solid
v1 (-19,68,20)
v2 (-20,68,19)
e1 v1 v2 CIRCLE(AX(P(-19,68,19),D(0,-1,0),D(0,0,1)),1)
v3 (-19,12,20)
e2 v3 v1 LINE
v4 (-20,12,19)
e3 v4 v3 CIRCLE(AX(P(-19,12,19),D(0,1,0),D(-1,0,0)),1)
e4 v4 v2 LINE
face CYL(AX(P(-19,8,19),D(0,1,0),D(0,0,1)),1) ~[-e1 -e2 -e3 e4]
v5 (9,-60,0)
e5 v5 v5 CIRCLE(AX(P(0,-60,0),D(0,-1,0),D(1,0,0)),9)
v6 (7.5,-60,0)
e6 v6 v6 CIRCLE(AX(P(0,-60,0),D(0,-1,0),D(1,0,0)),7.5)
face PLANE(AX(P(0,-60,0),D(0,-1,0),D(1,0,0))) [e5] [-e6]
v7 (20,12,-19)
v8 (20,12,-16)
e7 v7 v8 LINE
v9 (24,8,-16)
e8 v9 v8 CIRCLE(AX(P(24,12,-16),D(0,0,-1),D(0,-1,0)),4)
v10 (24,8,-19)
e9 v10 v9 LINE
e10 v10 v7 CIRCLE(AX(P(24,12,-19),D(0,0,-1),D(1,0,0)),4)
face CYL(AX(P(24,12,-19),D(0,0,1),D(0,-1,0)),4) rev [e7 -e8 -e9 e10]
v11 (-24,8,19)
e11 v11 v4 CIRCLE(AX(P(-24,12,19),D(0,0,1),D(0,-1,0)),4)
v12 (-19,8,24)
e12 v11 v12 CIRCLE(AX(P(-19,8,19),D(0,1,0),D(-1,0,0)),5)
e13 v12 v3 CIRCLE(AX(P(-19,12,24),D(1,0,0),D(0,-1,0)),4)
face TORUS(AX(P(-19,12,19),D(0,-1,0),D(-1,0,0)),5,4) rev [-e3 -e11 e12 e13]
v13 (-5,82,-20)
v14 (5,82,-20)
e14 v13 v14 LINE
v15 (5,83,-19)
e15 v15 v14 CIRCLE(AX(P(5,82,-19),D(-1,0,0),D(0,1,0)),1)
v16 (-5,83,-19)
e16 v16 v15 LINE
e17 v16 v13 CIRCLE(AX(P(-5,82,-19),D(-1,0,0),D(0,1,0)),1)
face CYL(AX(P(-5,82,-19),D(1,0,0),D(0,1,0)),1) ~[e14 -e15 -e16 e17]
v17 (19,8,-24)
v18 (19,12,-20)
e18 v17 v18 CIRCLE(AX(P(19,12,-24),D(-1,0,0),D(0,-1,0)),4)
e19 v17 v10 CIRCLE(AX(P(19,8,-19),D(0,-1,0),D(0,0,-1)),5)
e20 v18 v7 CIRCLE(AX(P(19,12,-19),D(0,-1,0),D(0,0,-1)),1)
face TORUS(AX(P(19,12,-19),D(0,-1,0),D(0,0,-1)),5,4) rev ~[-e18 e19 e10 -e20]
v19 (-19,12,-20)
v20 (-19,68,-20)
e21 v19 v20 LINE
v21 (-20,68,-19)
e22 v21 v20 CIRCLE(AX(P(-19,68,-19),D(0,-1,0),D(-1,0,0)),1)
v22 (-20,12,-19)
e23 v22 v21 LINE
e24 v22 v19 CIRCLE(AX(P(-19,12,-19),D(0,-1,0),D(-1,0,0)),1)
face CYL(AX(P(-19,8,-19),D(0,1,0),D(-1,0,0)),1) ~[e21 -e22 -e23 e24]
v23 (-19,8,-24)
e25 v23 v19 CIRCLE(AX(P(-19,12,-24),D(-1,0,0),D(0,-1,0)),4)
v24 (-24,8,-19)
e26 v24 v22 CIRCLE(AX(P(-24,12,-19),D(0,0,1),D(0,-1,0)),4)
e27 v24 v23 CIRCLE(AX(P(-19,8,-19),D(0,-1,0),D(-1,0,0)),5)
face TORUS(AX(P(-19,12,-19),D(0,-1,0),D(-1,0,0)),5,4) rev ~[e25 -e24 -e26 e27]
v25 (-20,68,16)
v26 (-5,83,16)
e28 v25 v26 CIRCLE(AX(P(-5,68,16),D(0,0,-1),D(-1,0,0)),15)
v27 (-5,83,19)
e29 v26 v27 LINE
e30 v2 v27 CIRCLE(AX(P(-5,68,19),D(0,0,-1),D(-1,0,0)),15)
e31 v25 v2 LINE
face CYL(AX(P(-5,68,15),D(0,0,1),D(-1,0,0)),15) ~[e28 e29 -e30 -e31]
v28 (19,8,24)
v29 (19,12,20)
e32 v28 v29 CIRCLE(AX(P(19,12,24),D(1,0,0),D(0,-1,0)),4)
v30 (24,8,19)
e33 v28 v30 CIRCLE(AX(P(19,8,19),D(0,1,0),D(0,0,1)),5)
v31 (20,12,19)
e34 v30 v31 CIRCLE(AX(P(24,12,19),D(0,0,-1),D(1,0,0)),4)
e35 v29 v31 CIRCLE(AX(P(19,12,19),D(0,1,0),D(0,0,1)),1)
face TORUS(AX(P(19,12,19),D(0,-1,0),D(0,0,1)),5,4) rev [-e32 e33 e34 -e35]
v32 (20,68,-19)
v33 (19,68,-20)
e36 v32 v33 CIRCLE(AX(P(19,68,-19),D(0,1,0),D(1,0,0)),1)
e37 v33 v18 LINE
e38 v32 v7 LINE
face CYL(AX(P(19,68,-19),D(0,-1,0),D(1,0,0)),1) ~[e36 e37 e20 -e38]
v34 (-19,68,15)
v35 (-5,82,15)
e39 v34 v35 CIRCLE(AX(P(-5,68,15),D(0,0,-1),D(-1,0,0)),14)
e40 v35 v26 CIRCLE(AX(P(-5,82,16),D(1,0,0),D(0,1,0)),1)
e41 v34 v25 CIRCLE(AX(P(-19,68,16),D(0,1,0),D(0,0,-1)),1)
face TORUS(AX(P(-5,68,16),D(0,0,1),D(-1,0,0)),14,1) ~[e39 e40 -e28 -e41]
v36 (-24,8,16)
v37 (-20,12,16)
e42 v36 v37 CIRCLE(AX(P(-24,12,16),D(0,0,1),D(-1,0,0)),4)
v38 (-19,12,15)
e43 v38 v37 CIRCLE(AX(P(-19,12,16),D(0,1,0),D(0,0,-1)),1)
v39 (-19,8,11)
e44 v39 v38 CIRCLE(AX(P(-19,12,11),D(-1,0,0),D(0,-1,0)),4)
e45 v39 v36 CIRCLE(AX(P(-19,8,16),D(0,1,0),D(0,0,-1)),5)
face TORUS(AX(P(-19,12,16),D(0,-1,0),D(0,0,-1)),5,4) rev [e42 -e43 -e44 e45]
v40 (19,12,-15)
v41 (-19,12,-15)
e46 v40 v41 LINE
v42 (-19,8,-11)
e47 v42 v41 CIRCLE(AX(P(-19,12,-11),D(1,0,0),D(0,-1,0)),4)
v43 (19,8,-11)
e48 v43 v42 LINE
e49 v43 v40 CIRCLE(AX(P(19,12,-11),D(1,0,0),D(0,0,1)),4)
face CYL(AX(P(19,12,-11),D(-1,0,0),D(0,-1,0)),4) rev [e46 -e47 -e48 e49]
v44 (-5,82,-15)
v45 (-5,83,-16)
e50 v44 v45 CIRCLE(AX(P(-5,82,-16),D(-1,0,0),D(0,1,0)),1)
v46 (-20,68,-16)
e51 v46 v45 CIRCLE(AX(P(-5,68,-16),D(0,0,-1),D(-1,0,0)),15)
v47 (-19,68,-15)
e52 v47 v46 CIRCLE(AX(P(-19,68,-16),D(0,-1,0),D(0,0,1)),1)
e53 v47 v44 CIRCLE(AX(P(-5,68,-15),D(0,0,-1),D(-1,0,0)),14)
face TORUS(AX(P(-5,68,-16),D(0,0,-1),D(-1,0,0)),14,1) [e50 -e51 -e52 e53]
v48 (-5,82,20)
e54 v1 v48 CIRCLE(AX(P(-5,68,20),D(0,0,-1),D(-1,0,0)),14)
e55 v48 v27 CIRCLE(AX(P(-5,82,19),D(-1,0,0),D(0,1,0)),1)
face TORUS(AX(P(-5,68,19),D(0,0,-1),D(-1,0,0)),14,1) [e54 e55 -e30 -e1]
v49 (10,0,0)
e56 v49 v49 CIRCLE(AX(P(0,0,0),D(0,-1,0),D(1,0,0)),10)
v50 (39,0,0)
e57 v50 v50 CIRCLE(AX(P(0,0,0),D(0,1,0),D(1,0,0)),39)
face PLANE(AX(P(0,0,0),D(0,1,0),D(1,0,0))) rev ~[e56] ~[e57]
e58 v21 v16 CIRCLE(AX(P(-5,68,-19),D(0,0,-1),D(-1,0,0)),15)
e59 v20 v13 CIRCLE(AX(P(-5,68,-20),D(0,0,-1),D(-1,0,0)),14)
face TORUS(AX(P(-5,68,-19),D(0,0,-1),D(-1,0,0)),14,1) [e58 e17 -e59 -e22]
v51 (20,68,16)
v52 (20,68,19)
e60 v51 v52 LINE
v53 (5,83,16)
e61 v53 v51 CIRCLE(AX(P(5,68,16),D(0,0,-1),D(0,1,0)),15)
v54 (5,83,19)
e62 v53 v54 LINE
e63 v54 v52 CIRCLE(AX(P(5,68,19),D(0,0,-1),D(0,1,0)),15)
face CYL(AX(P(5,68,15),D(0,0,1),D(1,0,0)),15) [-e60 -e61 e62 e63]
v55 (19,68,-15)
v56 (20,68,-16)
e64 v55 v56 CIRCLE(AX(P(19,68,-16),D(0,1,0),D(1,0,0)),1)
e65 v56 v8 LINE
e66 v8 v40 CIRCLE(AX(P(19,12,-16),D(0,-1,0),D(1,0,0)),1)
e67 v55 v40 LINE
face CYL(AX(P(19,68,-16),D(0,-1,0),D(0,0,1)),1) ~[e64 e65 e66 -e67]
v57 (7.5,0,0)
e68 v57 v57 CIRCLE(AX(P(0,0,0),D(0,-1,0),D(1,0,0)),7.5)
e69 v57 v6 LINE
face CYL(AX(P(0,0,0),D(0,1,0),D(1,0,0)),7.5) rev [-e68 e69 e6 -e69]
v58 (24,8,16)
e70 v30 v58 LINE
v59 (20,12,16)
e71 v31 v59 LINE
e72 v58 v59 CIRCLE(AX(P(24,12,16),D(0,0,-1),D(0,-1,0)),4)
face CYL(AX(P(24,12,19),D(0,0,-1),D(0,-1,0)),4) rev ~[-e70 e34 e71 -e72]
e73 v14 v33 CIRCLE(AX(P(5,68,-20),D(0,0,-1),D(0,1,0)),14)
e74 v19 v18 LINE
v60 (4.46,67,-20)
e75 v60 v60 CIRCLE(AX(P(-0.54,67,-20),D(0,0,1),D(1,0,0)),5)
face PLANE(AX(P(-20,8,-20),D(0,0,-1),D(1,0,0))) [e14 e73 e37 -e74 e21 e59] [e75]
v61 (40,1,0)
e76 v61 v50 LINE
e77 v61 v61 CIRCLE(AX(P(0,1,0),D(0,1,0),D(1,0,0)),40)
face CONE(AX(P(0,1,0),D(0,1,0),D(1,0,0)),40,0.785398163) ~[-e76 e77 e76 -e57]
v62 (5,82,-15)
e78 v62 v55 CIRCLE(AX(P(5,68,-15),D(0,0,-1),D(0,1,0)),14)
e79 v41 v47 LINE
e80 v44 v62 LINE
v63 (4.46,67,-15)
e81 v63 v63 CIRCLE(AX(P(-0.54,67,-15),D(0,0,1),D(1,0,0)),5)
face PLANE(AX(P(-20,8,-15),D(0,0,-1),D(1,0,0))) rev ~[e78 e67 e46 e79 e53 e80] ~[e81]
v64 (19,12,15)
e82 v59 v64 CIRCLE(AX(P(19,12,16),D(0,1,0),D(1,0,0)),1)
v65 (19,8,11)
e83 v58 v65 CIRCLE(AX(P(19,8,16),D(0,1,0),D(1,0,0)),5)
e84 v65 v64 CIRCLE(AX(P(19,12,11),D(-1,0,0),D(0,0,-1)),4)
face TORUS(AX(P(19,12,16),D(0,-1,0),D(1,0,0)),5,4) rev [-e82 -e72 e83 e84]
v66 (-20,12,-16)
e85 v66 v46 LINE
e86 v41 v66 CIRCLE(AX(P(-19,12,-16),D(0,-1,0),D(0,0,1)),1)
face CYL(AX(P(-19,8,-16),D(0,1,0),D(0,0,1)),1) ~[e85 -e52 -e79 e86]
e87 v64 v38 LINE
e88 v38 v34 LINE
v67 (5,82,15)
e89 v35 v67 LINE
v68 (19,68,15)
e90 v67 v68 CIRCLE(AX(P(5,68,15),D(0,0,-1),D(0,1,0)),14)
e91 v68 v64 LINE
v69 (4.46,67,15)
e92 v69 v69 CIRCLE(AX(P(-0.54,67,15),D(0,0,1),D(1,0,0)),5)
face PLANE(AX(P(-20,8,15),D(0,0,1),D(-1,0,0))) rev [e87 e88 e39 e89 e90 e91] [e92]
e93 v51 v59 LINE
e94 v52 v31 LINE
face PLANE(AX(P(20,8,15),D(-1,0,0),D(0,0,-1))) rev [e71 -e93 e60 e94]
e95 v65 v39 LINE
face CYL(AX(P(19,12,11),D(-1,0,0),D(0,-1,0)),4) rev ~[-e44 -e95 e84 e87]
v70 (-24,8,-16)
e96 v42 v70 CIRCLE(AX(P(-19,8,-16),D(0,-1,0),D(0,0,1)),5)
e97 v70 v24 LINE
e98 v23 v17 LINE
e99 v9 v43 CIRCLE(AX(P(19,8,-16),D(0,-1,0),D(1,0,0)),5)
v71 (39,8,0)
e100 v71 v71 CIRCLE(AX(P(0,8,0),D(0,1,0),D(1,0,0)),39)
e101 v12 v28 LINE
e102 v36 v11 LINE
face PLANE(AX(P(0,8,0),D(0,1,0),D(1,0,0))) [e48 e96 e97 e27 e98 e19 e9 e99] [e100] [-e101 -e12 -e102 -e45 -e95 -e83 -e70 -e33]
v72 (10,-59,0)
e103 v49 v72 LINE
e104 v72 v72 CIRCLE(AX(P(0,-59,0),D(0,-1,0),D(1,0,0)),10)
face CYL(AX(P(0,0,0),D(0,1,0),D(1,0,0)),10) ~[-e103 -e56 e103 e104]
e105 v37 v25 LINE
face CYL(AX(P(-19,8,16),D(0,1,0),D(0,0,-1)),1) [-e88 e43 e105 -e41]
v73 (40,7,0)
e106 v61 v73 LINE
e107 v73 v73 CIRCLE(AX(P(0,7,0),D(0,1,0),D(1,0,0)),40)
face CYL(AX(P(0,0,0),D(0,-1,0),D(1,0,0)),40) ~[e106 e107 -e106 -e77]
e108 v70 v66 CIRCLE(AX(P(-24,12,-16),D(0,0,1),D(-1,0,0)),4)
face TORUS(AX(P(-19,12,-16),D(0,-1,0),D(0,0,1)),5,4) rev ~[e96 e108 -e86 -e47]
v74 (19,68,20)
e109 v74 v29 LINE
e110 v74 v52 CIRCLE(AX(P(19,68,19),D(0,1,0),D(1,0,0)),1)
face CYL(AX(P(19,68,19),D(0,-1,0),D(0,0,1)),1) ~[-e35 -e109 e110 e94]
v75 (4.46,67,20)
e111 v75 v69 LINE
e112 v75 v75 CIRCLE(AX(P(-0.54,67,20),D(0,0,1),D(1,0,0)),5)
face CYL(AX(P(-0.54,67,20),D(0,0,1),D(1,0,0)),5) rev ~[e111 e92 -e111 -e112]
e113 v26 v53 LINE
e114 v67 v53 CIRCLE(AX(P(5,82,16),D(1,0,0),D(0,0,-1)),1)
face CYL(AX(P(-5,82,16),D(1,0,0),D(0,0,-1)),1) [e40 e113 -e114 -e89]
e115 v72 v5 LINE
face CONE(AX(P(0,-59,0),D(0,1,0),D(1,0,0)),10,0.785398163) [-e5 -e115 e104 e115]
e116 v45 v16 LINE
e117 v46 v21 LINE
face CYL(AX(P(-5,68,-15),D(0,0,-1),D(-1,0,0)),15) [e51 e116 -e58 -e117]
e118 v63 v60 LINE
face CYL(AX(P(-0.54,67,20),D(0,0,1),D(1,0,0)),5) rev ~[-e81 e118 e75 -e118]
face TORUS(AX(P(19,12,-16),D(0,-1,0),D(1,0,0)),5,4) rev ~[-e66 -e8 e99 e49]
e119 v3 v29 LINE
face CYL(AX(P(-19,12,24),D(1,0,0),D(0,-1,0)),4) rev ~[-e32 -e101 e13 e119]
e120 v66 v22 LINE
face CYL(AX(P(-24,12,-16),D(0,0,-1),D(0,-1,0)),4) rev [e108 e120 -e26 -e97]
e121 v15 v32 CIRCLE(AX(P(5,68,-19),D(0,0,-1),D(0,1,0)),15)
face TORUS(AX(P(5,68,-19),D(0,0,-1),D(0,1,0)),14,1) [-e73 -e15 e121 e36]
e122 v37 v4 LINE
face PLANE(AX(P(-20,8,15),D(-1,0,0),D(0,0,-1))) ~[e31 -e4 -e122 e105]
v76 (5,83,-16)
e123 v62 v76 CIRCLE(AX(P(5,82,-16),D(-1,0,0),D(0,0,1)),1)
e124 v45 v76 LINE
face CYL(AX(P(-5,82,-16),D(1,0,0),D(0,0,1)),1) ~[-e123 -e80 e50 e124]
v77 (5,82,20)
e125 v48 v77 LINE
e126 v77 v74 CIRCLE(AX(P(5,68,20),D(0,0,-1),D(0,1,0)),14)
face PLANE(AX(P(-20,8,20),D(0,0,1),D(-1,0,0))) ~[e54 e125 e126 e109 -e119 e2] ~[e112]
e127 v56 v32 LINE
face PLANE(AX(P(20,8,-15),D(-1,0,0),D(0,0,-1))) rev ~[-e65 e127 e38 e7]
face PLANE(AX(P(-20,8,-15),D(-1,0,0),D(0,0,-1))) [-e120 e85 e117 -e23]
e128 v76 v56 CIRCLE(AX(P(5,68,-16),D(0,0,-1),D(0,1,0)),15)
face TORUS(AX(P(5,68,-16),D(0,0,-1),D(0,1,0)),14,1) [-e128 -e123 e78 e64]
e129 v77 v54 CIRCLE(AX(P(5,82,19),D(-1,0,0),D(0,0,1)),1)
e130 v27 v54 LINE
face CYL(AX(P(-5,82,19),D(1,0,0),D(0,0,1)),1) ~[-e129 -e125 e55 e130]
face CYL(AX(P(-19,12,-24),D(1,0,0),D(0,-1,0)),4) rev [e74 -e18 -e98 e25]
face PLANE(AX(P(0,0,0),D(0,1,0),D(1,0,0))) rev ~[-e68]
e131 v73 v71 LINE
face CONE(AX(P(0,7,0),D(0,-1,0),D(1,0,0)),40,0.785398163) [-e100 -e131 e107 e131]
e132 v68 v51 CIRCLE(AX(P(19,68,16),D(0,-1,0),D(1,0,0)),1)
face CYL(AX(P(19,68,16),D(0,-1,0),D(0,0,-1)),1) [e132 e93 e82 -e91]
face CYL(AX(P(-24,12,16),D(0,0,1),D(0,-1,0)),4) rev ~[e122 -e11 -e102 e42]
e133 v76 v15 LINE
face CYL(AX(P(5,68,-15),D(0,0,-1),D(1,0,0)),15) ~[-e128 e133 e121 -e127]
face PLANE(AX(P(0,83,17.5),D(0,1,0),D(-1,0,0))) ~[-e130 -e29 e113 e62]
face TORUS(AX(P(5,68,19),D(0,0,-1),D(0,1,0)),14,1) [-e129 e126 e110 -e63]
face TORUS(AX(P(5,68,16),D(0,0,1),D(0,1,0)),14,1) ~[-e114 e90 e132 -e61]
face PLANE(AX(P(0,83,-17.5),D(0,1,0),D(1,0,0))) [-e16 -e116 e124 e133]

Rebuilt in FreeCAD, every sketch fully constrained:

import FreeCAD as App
import Part
import Sketcher

V = App.Vector


def edges_at(feature, points):
    """Names of the edges that pass closest to the given points."""
    edges = feature.Shape.Edges
    near = lambda p: min(range(len(edges)), key=lambda i: edges[i].distToShape(Part.Vertex(*p))[0])
    return sorted({f"Edge{near(p) + 1}" for p in points})


def add_polygon(sketch, points):
    """Adds a closed chain of lines whose ends are joined by coincident constraints."""
    first, n = sketch.GeometryCount, len(points)
    for a, b in zip(points, points[1:] + points[:1]):
        sketch.addGeometry(Part.LineSegment(App.Vector(*a, 0), App.Vector(*b, 0)), False)
    for i in range(n):
        sketch.addConstraint(Sketcher.Constraint("Coincident", first + i, 2, first + (i + 1) % n, 1))

doc = App.newDocument("Part")
params = doc.addObject("Spreadsheet::Sheet", "Params")
for row, (alias, value) in enumerate([
    ("sketch1_diameter", "80 mm"),
    ("pad1_length", "8 mm"),
    ("sketch2_diameter", "20 mm"),
    ("sketch2_diameter2", "15 mm"),
    ("pad2_length", "60 mm"),
    ("chamfer_size", "1 mm"),
    ("sketch3_width", "40 mm"),
    ("sketch3_height", "5 mm"),
    ("pad3_length", "75 mm"),
    ("fillet_radius", "15 mm"),
    ("fillet2_radius", "1 mm"),
    ("fillet3_radius", "4 mm"),
    ("fillet4_radius", "15 mm"),
    ("fillet5_radius", "1 mm"),
    ("fillet6_radius", "4 mm"),
    ("sketch4_diameter", "10 mm"),
    ("pocket1_length", "40 mm"),
], start=1):
    params.set(f"A{row}", alias)
    params.set(f"B{row}", "=" + value)
    params.setAlias(f"B{row}", alias)

body = doc.addObject("PartDesign::Body", "Body")

sketch1 = doc.addObject("Sketcher::SketchObject", "Sketch")
body.addObject(sketch1)
sketch1.AttachmentSupport = (doc.XZ_Plane, [""])
sketch1.MapMode = "FlatFace"
sketch1.addGeometry(Part.Circle(V(0, 0, 0), V(0, 0, 1), 40), False)
sketch1.addConstraint([
    Sketcher.Constraint("Coincident", 0, 3, -1, 1),
    Sketcher.Constraint("Diameter", 0, 80.0),
])
sketch1.setExpression("Constraints[1]", "Params.sketch1_diameter")
pad1 = doc.addObject("PartDesign::Pad", "Pad")
body.addObject(pad1)
pad1.Profile = sketch1
pad1.setExpression("Length", "Params.pad1_length")
pad1.Reversed = True

sketch2 = doc.addObject("Sketcher::SketchObject", "Sketch001")
body.addObject(sketch2)
sketch2.AttachmentSupport = (doc.XZ_Plane, [""])
sketch2.MapMode = "FlatFace"
sketch2.addGeometry([
    Part.Circle(V(0, 0, 0), V(0, 0, 1), 10),
    Part.Circle(V(0, 0, 0), V(0, 0, 1), 8),
], False)
sketch2.addConstraint([
    Sketcher.Constraint("Coincident", 0, 3, -1, 1),
    Sketcher.Constraint("Coincident", 1, 3, -1, 1),
    Sketcher.Constraint("Diameter", 0, 20.0),
    Sketcher.Constraint("Diameter", 1, 15.0),
])
sketch2.setExpression("Constraints[2]", "Params.sketch2_diameter")
sketch2.setExpression("Constraints[3]", "Params.sketch2_diameter2")
pad2 = doc.addObject("PartDesign::Pad", "Pad001")
body.addObject(pad2)
pad2.Profile = sketch2
pad2.setExpression("Length", "Params.pad2_length")
doc.recompute()

chamfer = doc.addObject("PartDesign::Chamfer", "Chamfer")
body.addObject(chamfer)
chamfer.Base = (pad2, edges_at(pad2, [(-40, 0, 0), (-40, 8, 0), (-10, -60, 0)]))
chamfer.setExpression("Size", "Params.chamfer_size")

sketch3 = doc.addObject("Sketcher::SketchObject", "Sketch002")
body.addObject(sketch3)
sketch3.AttachmentSupport = (doc.XZ_Plane, [""])
sketch3.MapMode = "FlatFace"
sketch3.AttachmentOffset = App.Placement(V(0, 0, -8), App.Rotation())
add_polygon(sketch3, [(-20, -20), (-20, -15), (20, -15), (20, -20)])
sketch3.addConstraint([
    Sketcher.Constraint("Vertical", 0),
    Sketcher.Constraint("Horizontal", 1),
    Sketcher.Constraint("Vertical", 2),
    Sketcher.Constraint("Horizontal", 3),
    Sketcher.Constraint("DistanceX", 1, 1, 1, 2, 40.0),
    Sketcher.Constraint("DistanceY", 0, 1, 0, 2, 5.0),
    Sketcher.Constraint("DistanceX", 0, 2, -1, 1, 20.0),
    Sketcher.Constraint("DistanceY", 0, 2, -1, 1, 15.0),
])
sketch3.setExpression("Constraints[8]", "Params.sketch3_width")
sketch3.setExpression("Constraints[9]", "Params.sketch3_height")
pad3 = doc.addObject("PartDesign::Pad", "Pad002")
body.addObject(pad3)
pad3.Profile = sketch3
pad3.setExpression("Length", "Params.pad3_length")
pad3.Reversed = True
doc.recompute()

fillet = doc.addObject("PartDesign::Fillet", "Fillet")
body.addObject(fillet)
fillet.Base = (pad3, edges_at(pad3, [(-20, 83, -17.5), (20, 83, -17.5)]))
fillet.setExpression("Radius", "Params.fillet_radius")
doc.recompute()

fillet2 = doc.addObject("PartDesign::Fillet", "Fillet001")
body.addObject(fillet2)
fillet2.Base = (fillet, edges_at(fillet, [
    (0, 83, -15),
    (0, 83, -20),
    (-20, 38, -20),
    (20, 38, -20),
    (-15.607, 78.607, -20),
    (15.607, 78.607, -20),
    (20, 38, -15),
    (-20, 38, -15),
    (-15.607, 78.607, -15),
    (15.607, 78.607, -15),
]))
fillet2.setExpression("Radius", "Params.fillet2_radius")
doc.recompute()

fillet3 = doc.addObject("PartDesign::Fillet", "Fillet002")
body.addObject(fillet3)
fillet3.Base = (fillet2, edges_at(fillet2, [
    (0, 8, -20),
    (20, 8, -17.5),
    (0, 8, -15),
    (-20, 8, -17.5),
    (19.707, 8, -19.707),
    (19.707, 8, -15.293),
    (-19.707, 8, -19.707),
    (-19.707, 8, -15.293),
]))
fillet3.setExpression("Radius", "Params.fillet3_radius")
doc.recompute()

mirrored = doc.addObject("PartDesign::Mirrored", "Mirrored")
body.addObject(mirrored)
mirrored.Originals = [pad3]
mirrored.MirrorPlane = (doc.XY_Plane, [""])
body.Tip = mirrored
doc.recompute()

fillet4 = doc.addObject("PartDesign::Fillet", "Fillet003")
body.addObject(fillet4)
fillet4.Base = (mirrored, edges_at(mirrored, [(-20, 83, 17.5), (20, 83, 17.5)]))
fillet4.setExpression("Radius", "Params.fillet4_radius")
doc.recompute()

fillet5 = doc.addObject("PartDesign::Fillet", "Fillet004")
body.addObject(fillet5)
fillet5.Base = (fillet4, edges_at(fillet4, [
    (0, 83, 15),
    (0, 83, 20),
    (-20, 38, 20),
    (20, 38, 20),
    (-15.607, 78.607, 20),
    (15.607, 78.607, 20),
    (20, 38, 15),
    (-20, 38, 15),
    (-15.607, 78.607, 15),
    (15.607, 78.607, 15),
]))
fillet5.setExpression("Radius", "Params.fillet5_radius")
doc.recompute()

fillet6 = doc.addObject("PartDesign::Fillet", "Fillet005")
body.addObject(fillet6)
fillet6.Base = (fillet5, edges_at(fillet5, [
    (0, 8, 20),
    (20, 8, 17.5),
    (0, 8, 15),
    (-20, 8, 17.5),
    (19.707, 8, 19.707),
    (19.707, 8, 15.293),
    (-19.707, 8, 19.707),
    (-19.707, 8, 15.293),
]))
fillet6.setExpression("Radius", "Params.fillet6_radius")

sketch4 = doc.addObject("Sketcher::SketchObject", "Sketch003")
body.addObject(sketch4)
sketch4.AttachmentSupport = (doc.XY_Plane, [""])
sketch4.MapMode = "FlatFace"
sketch4.AttachmentOffset = App.Placement(V(0, 0, 20), App.Rotation())
sketch4.addGeometry(Part.Circle(V(-1, 67, 0), V(0, 0, 1), 5), False)
sketch4.addConstraint([
    Sketcher.Constraint("Diameter", 0, 10.0),
    Sketcher.Constraint("DistanceY", -1, 1, 0, 3, 67.0),
    Sketcher.Constraint("DistanceX", 0, 3, -1, 1, 0.54),
])
sketch4.setExpression("Constraints[0]", "Params.sketch4_diameter")
pocket1 = doc.addObject("PartDesign::Pocket", "Pocket")
body.addObject(pocket1)
pocket1.Profile = sketch4
pocket1.setExpression("Length", "Params.pocket1_length")

doc.recompute()
